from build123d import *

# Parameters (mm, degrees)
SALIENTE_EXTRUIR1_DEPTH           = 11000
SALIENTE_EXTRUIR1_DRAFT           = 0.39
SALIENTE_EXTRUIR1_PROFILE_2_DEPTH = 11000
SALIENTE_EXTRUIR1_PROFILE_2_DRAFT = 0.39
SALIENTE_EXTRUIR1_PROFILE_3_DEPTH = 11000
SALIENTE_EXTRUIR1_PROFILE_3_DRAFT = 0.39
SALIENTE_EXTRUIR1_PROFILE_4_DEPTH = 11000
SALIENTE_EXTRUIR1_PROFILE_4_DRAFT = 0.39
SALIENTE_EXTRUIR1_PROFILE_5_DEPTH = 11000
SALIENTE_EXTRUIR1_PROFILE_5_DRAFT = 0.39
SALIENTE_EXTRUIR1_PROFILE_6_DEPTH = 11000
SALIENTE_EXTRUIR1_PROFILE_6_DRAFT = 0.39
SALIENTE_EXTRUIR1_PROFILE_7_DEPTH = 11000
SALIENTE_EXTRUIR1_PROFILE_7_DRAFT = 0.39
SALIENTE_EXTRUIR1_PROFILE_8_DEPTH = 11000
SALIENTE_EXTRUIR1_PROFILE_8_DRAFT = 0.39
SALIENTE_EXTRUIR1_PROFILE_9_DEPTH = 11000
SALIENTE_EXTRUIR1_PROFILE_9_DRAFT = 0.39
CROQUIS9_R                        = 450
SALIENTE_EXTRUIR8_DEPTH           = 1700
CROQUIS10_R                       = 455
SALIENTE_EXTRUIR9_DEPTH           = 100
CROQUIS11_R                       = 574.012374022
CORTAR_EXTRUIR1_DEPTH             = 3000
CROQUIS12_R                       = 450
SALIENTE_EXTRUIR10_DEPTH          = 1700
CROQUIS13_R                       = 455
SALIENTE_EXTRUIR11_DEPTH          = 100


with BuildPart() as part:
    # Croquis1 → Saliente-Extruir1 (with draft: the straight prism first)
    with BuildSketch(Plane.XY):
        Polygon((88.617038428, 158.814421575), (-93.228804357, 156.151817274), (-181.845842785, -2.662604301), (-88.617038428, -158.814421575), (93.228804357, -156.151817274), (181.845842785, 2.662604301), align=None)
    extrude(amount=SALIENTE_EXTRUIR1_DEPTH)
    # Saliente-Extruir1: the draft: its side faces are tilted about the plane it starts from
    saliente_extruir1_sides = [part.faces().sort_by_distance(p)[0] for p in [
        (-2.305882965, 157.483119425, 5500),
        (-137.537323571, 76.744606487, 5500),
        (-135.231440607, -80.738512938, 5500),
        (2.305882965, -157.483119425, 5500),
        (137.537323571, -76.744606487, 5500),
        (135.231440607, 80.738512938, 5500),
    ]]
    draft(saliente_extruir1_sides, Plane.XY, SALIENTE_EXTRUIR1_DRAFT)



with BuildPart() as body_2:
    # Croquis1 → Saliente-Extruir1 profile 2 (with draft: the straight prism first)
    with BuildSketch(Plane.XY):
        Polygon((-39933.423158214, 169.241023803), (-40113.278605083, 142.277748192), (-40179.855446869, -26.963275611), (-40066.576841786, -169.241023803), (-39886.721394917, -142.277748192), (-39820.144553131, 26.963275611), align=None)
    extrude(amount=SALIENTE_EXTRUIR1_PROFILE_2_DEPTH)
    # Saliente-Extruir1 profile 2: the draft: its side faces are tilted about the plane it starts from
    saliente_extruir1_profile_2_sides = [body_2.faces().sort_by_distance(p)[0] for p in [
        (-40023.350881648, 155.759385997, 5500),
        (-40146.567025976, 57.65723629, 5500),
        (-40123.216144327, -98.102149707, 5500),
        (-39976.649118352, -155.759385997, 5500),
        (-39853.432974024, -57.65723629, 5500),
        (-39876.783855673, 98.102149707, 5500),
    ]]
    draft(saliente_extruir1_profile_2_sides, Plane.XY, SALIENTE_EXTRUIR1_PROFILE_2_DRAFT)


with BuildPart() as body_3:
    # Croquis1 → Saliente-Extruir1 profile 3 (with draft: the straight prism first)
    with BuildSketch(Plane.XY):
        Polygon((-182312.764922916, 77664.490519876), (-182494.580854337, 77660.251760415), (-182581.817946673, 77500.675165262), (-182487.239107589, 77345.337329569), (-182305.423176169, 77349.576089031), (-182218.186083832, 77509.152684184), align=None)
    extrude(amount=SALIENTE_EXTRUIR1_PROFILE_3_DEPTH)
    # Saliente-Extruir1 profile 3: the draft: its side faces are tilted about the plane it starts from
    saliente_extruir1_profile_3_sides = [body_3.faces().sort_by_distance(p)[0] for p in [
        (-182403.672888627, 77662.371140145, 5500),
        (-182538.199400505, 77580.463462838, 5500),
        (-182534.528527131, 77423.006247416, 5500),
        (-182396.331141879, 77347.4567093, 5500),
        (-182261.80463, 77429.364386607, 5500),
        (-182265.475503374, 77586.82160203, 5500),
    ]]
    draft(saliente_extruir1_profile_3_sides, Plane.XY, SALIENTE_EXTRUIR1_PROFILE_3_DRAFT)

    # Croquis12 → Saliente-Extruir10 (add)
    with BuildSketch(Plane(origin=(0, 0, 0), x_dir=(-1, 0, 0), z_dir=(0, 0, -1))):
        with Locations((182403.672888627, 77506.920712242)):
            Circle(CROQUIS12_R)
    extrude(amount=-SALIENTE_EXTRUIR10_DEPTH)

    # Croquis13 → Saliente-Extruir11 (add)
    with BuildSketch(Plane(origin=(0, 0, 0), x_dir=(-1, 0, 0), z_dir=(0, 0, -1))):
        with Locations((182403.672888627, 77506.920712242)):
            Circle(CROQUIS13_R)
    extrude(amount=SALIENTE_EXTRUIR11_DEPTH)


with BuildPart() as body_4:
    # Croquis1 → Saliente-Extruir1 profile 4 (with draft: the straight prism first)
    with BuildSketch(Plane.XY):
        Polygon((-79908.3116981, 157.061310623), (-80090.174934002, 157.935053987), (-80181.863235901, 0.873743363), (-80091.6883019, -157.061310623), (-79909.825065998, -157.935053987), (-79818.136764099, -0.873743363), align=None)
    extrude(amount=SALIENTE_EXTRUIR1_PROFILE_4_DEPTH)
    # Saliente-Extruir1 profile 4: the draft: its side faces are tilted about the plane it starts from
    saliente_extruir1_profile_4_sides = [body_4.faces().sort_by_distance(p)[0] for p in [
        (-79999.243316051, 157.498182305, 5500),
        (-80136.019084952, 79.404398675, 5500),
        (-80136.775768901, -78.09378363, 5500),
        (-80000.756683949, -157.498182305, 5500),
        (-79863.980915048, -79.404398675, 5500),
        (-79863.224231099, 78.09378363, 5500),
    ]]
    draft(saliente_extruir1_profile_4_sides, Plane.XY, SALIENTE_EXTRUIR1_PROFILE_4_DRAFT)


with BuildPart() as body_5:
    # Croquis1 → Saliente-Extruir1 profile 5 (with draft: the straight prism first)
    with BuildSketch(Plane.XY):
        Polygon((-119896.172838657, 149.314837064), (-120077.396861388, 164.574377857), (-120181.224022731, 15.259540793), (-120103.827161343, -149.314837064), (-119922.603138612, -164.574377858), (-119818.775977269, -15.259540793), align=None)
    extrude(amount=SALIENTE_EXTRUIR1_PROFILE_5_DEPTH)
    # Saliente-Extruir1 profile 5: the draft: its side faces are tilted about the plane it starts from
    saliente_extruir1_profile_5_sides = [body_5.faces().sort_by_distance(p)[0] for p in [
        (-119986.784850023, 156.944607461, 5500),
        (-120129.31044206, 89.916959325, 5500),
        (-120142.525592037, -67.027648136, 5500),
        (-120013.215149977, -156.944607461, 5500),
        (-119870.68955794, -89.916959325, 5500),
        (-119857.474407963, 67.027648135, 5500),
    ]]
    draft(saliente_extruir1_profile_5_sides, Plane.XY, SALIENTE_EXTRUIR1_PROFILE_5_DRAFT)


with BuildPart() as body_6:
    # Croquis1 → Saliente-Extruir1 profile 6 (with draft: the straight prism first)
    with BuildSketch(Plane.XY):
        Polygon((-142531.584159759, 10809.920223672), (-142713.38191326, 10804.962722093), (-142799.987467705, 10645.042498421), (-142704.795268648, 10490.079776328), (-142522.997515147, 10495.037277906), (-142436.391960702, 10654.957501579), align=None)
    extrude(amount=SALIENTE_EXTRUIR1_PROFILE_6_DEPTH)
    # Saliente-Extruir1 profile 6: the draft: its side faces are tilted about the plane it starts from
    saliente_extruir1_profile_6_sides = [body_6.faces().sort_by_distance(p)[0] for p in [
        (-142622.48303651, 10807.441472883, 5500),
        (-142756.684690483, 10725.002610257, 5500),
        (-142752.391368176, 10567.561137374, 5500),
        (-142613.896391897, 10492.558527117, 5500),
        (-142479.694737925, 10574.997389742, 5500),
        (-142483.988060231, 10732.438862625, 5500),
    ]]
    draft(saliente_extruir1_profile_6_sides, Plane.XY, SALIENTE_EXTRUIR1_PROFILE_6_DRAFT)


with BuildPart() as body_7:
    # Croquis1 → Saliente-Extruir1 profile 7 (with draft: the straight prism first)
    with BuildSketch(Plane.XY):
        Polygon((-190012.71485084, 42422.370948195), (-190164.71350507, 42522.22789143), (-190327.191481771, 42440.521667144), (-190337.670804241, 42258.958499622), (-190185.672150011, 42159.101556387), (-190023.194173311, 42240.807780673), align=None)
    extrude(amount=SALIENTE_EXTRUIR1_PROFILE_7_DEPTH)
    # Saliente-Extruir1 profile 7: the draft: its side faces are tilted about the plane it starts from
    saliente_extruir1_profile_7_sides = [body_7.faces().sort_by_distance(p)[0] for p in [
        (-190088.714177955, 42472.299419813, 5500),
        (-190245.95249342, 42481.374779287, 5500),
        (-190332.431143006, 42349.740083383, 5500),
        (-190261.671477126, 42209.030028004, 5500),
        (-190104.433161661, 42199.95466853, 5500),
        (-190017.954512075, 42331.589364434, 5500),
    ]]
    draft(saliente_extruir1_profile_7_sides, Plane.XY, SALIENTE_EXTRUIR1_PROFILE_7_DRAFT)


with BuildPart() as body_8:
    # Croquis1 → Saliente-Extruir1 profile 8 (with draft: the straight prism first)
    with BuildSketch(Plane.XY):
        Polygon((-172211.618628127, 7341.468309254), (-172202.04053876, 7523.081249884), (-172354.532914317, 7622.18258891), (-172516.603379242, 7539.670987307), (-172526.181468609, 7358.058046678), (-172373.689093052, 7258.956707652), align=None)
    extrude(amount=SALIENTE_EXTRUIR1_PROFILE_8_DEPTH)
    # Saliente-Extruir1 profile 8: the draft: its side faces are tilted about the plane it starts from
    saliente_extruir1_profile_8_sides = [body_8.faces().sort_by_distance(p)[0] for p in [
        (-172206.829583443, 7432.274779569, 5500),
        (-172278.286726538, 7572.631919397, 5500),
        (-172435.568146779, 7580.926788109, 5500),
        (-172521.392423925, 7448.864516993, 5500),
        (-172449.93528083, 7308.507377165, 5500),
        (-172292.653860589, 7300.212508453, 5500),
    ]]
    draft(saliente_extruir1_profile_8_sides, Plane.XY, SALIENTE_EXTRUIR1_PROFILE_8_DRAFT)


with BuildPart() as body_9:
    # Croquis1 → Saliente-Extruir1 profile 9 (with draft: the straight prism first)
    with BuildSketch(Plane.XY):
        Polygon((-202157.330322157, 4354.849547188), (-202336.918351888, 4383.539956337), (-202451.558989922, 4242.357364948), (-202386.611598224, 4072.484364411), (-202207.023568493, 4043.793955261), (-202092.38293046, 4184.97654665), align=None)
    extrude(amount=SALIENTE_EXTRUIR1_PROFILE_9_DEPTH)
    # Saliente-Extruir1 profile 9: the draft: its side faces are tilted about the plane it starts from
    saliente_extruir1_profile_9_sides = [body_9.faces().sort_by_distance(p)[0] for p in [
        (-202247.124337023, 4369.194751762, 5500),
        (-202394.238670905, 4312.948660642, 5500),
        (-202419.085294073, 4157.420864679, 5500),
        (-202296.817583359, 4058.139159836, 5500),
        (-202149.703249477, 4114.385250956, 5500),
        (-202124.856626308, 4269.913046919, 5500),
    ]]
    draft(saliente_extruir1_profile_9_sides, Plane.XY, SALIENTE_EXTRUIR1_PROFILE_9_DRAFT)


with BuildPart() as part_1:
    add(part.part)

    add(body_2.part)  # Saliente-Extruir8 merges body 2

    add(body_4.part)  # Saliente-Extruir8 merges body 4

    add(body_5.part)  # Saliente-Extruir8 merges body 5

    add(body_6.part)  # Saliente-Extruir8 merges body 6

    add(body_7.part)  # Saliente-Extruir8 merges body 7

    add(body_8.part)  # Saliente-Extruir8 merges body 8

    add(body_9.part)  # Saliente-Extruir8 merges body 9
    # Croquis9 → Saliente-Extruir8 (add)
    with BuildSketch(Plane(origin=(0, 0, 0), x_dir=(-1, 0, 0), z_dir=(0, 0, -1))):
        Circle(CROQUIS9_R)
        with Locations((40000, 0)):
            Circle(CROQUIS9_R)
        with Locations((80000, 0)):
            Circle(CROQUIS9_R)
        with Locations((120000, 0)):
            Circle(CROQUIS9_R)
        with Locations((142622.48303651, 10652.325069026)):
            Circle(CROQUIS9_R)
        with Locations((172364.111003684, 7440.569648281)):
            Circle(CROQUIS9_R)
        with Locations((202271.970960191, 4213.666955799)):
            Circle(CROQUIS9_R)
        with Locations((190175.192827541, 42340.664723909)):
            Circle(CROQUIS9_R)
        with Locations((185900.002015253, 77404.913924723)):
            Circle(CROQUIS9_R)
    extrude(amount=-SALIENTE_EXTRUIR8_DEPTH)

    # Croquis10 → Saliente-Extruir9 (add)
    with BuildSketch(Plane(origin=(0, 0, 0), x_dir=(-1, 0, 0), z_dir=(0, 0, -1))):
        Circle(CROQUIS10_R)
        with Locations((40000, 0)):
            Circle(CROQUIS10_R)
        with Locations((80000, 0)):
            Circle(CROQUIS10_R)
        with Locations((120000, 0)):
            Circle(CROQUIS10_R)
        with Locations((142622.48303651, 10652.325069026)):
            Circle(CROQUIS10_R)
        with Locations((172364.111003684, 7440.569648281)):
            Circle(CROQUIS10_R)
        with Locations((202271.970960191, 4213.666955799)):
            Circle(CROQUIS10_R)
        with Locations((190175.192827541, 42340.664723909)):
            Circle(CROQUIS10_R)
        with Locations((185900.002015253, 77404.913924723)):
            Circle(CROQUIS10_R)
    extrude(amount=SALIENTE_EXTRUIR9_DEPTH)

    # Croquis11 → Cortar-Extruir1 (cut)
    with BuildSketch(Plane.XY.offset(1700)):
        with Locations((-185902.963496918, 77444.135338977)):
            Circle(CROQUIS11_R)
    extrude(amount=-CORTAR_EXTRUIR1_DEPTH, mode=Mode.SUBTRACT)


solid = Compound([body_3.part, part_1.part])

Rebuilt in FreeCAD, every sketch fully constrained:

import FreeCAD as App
import Part
import Sketcher

V = App.Vector


def faces_at(feature, points):
    """Names of the faces that lie closest to the given points."""
    faces = feature.Shape.Faces
    near = lambda p: min(range(len(faces)), key=lambda i: faces[i].distToShape(Part.Vertex(*p))[0])
    return sorted({f"Face{near(p) + 1}" for p in points})

doc = App.newDocument("Part")
body = doc.addObject("PartDesign::Body", "Body")

sketch1 = body.newObject("Sketcher::SketchObject", "Sketch")
sketch1.AttachmentSupport = (doc.getObject("XY_Plane"), [""])
sketch1.MapMode = "FlatFace"
sketch1.addGeometry(Part.LineSegment(V(88.617038, 158.814422, 0), V(-93.228804, 156.151817, 0)), False)
sketch1.addGeometry(Part.LineSegment(V(-93.228804, 156.151817, 0), V(-181.845843, -2.662604, 0)), False)
sketch1.addGeometry(Part.LineSegment(V(-181.845843, -2.662604, 0), V(-88.617038, -158.814422, 0)), False)
sketch1.addGeometry(Part.LineSegment(V(-88.617038, -158.814422, 0), V(93.228804, -156.151817, 0)), False)
sketch1.addGeometry(Part.LineSegment(V(93.228804, -156.151817, 0), V(181.845843, 2.662604, 0)), False)
sketch1.addGeometry(Part.LineSegment(V(181.845843, 2.662604, 0), V(88.617038, 158.814422, 0)), False)
sketch1.addConstraint(Sketcher.Constraint("Coincident", 0, 2, 1, 1))
sketch1.addConstraint(Sketcher.Constraint("Coincident", 1, 2, 2, 1))
sketch1.addConstraint(Sketcher.Constraint("Coincident", 2, 2, 3, 1))
sketch1.addConstraint(Sketcher.Constraint("Coincident", 3, 2, 4, 1))
sketch1.addConstraint(Sketcher.Constraint("Coincident", 4, 2, 5, 1))
sketch1.addConstraint(Sketcher.Constraint("Coincident", 5, 2, 0, 1))
sketch1.addConstraint(Sketcher.Constraint("Symmetric", 0, 2, 3, 2, -1, 1))
sketch1.addConstraint(Sketcher.Constraint("Symmetric", 1, 2, 4, 2, -1, 1))
sketch1.addConstraint(Sketcher.Constraint("Symmetric", 2, 2, 5, 2, -1, 1))
sketch1.addConstraint(Sketcher.Constraint("Equal", 0, 1))
sketch1.addConstraint(Sketcher.Constraint("Equal", 1, 2))
sketch1.addConstraint(Sketcher.Constraint("DistanceX", 2, 2, -1, 1, 88.617038))
sketch1.addConstraint(Sketcher.Constraint("DistanceY", 2, 2, -1, 1, 158.814422))
sketch1.addConstraint(Sketcher.Constraint("DistanceX", 1, 2, 0, 2, 88.617038))
sketch1.addConstraint(Sketcher.Constraint("DistanceY", 1, 2, 0, 2, 158.814422))
pad1 = body.newObject("PartDesign::Pad", "Pad")
pad1.Profile = sketch1
pad1.Length = 11000
doc.recompute()

draft = body.newObject("PartDesign::Draft", "Draft")
draft.Base = (pad1, faces_at(pad1, [
    (-2.306, 157.483, 5500),
    (-137.537, 76.745, 5500),
    (-135.231, -80.739, 5500),
    (2.306, -157.483, 5500),
    (137.537, -76.745, 5500),
    (135.231, 80.739, 5500),
]))
draft.NeutralPlane = (doc.getObject("XY_Plane"), [""])
draft.Angle = 0.39
draft.Reversed = False
body2 = doc.addObject("PartDesign::Body", "Body001")

sketch2 = body2.newObject("Sketcher::SketchObject", "Sketch001")
sketch2.AttachmentSupport = (doc.getObject("XY_Plane001"), [""])
sketch2.MapMode = "FlatFace"
sketch2.addGeometry(Part.LineSegment(V(-39933.423158, 169.241024, 0), V(-40113.278605, 142.277748, 0)), False)
sketch2.addGeometry(Part.LineSegment(V(-40113.278605, 142.277748, 0), V(-40179.855447, -26.963276, 0)), False)
sketch2.addGeometry(Part.LineSegment(V(-40179.855447, -26.963276, 0), V(-40066.576842, -169.241024, 0)), False)
sketch2.addGeometry(Part.LineSegment(V(-40066.576842, -169.241024, 0), V(-39886.721395, -142.277748, 0)), False)
sketch2.addGeometry(Part.LineSegment(V(-39886.721395, -142.277748, 0), V(-39820.144553, 26.963276, 0)), False)
sketch2.addGeometry(Part.LineSegment(V(-39820.144553, 26.963276, 0), V(-39933.423158, 169.241024, 0)), False)
sketch2.addConstraint(Sketcher.Constraint("Coincident", 0, 2, 1, 1))
sketch2.addConstraint(Sketcher.Constraint("Coincident", 1, 2, 2, 1))
sketch2.addConstraint(Sketcher.Constraint("Coincident", 2, 2, 3, 1))
sketch2.addConstraint(Sketcher.Constraint("Coincident", 3, 2, 4, 1))
sketch2.addConstraint(Sketcher.Constraint("Coincident", 4, 2, 5, 1))
sketch2.addConstraint(Sketcher.Constraint("Coincident", 5, 2, 0, 1))
sketch2.addConstraint(Sketcher.Constraint("Parallel", 0, 3))
sketch2.addConstraint(Sketcher.Constraint("Parallel", 1, 4))
sketch2.addConstraint(Sketcher.Constraint("Parallel", 2, 5))
sketch2.addConstraint(Sketcher.Constraint("Equal", 0, 1))
sketch2.addConstraint(Sketcher.Constraint("Equal", 1, 2))
sketch2.addConstraint(Sketcher.Constraint("Equal", 2, 3))
sketch2.addConstraint(Sketcher.Constraint("DistanceY", 2, 2, 4, 2, 196.204299))
sketch2.addConstraint(Sketcher.Constraint("DistanceY", -1, 1, 0, 2, 142.277748))
sketch2.addConstraint(Sketcher.Constraint("DistanceX", 2, 2, -1, 1, 40066.576842))
sketch2.addConstraint(Sketcher.Constraint("DistanceY", 3, 2, -1, 1, 142.277748))
sketch2.addConstraint(Sketcher.Constraint("DistanceX", 5, 2, -1, 1, 39933.423158))
sketch2.addConstraint(Sketcher.Constraint("DistanceX", 1, 2, 0, 2, 66.576842))
pad2 = body2.newObject("PartDesign::Pad", "Pad001")
pad2.Profile = sketch2
pad2.Length = 11000
doc.recompute()

draft2 = body2.newObject("PartDesign::Draft", "Draft001")
draft2.Base = (pad2, faces_at(pad2, [
    (-40023.351, 155.759, 5500),
    (-40146.567, 57.657, 5500),
    (-40123.216, -98.102, 5500),
    (-39976.649, -155.759, 5500),
    (-39853.433, -57.657, 5500),
    (-39876.784, 98.102, 5500),
]))
draft2.NeutralPlane = (doc.getObject("XY_Plane001"), [""])
draft2.Angle = 0.39
draft2.Reversed = False
body3 = doc.addObject("PartDesign::Body", "Body002")

sketch3 = body3.newObject("Sketcher::SketchObject", "Sketch002")
sketch3.AttachmentSupport = (doc.getObject("XY_Plane002"), [""])
sketch3.MapMode = "FlatFace"
sketch3.addGeometry(Part.LineSegment(V(-182312.764923, 77664.49052, 0), V(-182494.580854, 77660.25176, 0)), False)
sketch3.addGeometry(Part.LineSegment(V(-182494.580854, 77660.25176, 0), V(-182581.817947, 77500.675165, 0)), False)
sketch3.addGeometry(Part.LineSegment(V(-182581.817947, 77500.675165, 0), V(-182487.239108, 77345.33733, 0)), False)
sketch3.addGeometry(Part.LineSegment(V(-182487.239108, 77345.33733, 0), V(-182305.423176, 77349.576089, 0)), False)
sketch3.addGeometry(Part.LineSegment(V(-182305.423176, 77349.576089, 0), V(-182218.186084, 77509.152684, 0)), False)
sketch3.addGeometry(Part.LineSegment(V(-182218.186084, 77509.152684, 0), V(-182312.764923, 77664.49052, 0)), False)
sketch3.addConstraint(Sketcher.Constraint("Coincident", 0, 2, 1, 1))
sketch3.addConstraint(Sketcher.Constraint("Coincident", 1, 2, 2, 1))
sketch3.addConstraint(Sketcher.Constraint("Coincident", 2, 2, 3, 1))
sketch3.addConstraint(Sketcher.Constraint("Coincident", 3, 2, 4, 1))
sketch3.addConstraint(Sketcher.Constraint("Coincident", 4, 2, 5, 1))
sketch3.addConstraint(Sketcher.Constraint("Coincident", 5, 2, 0, 1))
sketch3.addConstraint(Sketcher.Constraint("Parallel", 0, 3))
sketch3.addConstraint(Sketcher.Constraint("Parallel", 1, 4))
sketch3.addConstraint(Sketcher.Constraint("Parallel", 2, 5))
sketch3.addConstraint(Sketcher.Constraint("Equal", 0, 1))
sketch3.addConstraint(Sketcher.Constraint("Equal", 1, 2))
sketch3.addConstraint(Sketcher.Constraint("Equal", 2, 3))
sketch3.addConstraint(Sketcher.Constraint("DistanceY", -1, 1, 0, 2, 77660.25176))
sketch3.addConstraint(Sketcher.Constraint("DistanceY", -1, 1, 2, 2, 77345.33733))
sketch3.addConstraint(Sketcher.Constraint("DistanceY", -1, 1, 3, 2, 77349.576089))
sketch3.addConstraint(Sketcher.Constraint("DistanceX", 1, 2, 2, 2, 94.578839))
sketch3.addConstraint(Sketcher.Constraint("DistanceX", 2, 2, 3, 2, 181.815931))
sketch3.addConstraint(Sketcher.Constraint("DistanceX", 0, 2, -1, 1, 182494.580854))
pad3 = body3.newObject("PartDesign::Pad", "Pad002")
pad3.Profile = sketch3
pad3.Length = 11000
doc.recompute()

draft3 = body3.newObject("PartDesign::Draft", "Draft002")
draft3.Base = (pad3, faces_at(pad3, [
    (-182403.673, 77662.371, 5500),
    (-182538.199, 77580.463, 5500),
    (-182534.529, 77423.006, 5500),
    (-182396.331, 77347.457, 5500),
    (-182261.805, 77429.364, 5500),
    (-182265.476, 77586.822, 5500),
]))
draft3.NeutralPlane = (doc.getObject("XY_Plane002"), [""])
draft3.Angle = 0.39
draft3.Reversed = False

sketch4 = body3.newObject("Sketcher::SketchObject", "Sketch003")
sketch4.AttachmentSupport = (doc.getObject("XY_Plane002"), [""])
sketch4.MapMode = "FlatFace"
sketch4.addGeometry(Part.Circle(V(-182403.672889, 77506.920712, 0), V(0, 0, 1), 450), False)
sketch4.addConstraint(Sketcher.Constraint("Diameter", 0, 900.0))
sketch4.addConstraint(Sketcher.Constraint("DistanceX", 0, 3, -1, 1, 182403.672889))
sketch4.addConstraint(Sketcher.Constraint("DistanceY", -1, 1, 0, 3, 77506.920712))
pad4 = body3.newObject("PartDesign::Pad", "Pad003")
pad4.Profile = sketch4
pad4.Length = 1700

sketch5 = body3.newObject("Sketcher::SketchObject", "Sketch004")
sketch5.AttachmentSupport = (doc.getObject("XY_Plane002"), [""])
sketch5.MapMode = "FlatFace"
sketch5.addGeometry(Part.Circle(V(-182403.672889, 77506.920712, 0), V(0, 0, 1), 455), False)
sketch5.addConstraint(Sketcher.Constraint("Diameter", 0, 910.0))
sketch5.addConstraint(Sketcher.Constraint("DistanceX", 0, 3, -1, 1, 182403.672889))
sketch5.addConstraint(Sketcher.Constraint("DistanceY", -1, 1, 0, 3, 77506.920712))
pad5 = body3.newObject("PartDesign::Pad", "Pad004")
pad5.Profile = sketch5
pad5.Length = 100
pad5.Reversed = True
body4 = doc.addObject("PartDesign::Body", "Body003")

sketch6 = body4.newObject("Sketcher::SketchObject", "Sketch005")
sketch6.AttachmentSupport = (doc.getObject("XY_Plane003"), [""])
sketch6.MapMode = "FlatFace"
sketch6.addGeometry(Part.LineSegment(V(-79908.311698, 157.061311, 0), V(-80090.174934, 157.935054, 0)), False)
sketch6.addGeometry(Part.LineSegment(V(-80090.174934, 157.935054, 0), V(-80181.863236, 0.873743, 0)), False)
sketch6.addGeometry(Part.LineSegment(V(-80181.863236, 0.873743, 0), V(-80091.688302, -157.061311, 0)), False)
sketch6.addGeometry(Part.LineSegment(V(-80091.688302, -157.061311, 0), V(-79909.825066, -157.935054, 0)), False)
sketch6.addGeometry(Part.LineSegment(V(-79909.825066, -157.935054, 0), V(-79818.136764, -0.873743, 0)), False)
sketch6.addGeometry(Part.LineSegment(V(-79818.136764, -0.873743, 0), V(-79908.311698, 157.061311, 0)), False)
sketch6.addConstraint(Sketcher.Constraint("Coincident", 0, 2, 1, 1))
sketch6.addConstraint(Sketcher.Constraint("Coincident", 1, 2, 2, 1))
sketch6.addConstraint(Sketcher.Constraint("Coincident", 2, 2, 3, 1))
sketch6.addConstraint(Sketcher.Constraint("Coincident", 3, 2, 4, 1))
sketch6.addConstraint(Sketcher.Constraint("Coincident", 4, 2, 5, 1))
sketch6.addConstraint(Sketcher.Constraint("Coincident", 5, 2, 0, 1))
sketch6.addConstraint(Sketcher.Constraint("Parallel", 0, 3))
sketch6.addConstraint(Sketcher.Constraint("Parallel", 1, 4))
sketch6.addConstraint(Sketcher.Constraint("Parallel", 2, 5))
sketch6.addConstraint(Sketcher.Constraint("Equal", 0, 1))
sketch6.addConstraint(Sketcher.Constraint("Equal", 1, 2))
sketch6.addConstraint(Sketcher.Constraint("Equal", 2, 3))
sketch6.addConstraint(Sketcher.Constraint("DistanceX", 2, 2, -1, 1, 80091.688302))
sketch6.addConstraint(Sketcher.Constraint("DistanceX", 5, 2, -1, 1, 79908.311698))
sketch6.addConstraint(Sketcher.Constraint("DistanceX", 1, 2, 0, 2, 91.688302))
sketch6.addConstraint(Sketcher.Constraint("DistanceY", 2, 2, -1, 1, 157.061311))
sketch6.addConstraint(Sketcher.Constraint("DistanceY", -1, 1, 5, 2, 157.061311))
sketch6.addConstraint(Sketcher.Constraint("DistanceY", 1, 2, 0, 2, 157.061311))
pad6 = body4.newObject("PartDesign::Pad", "Pad005")
pad6.Profile = sketch6
pad6.Length = 11000
doc.recompute()

draft4 = body4.newObject("PartDesign::Draft", "Draft003")
draft4.Base = (pad6, faces_at(pad6, [
    (-79999.243, 157.498, 5500),
    (-80136.019, 79.404, 5500),
    (-80136.776, -78.094, 5500),
    (-80000.757, -157.498, 5500),
    (-79863.981, -79.404, 5500),
    (-79863.224, 78.094, 5500),
]))
draft4.NeutralPlane = (doc.getObject("XY_Plane003"), [""])
draft4.Angle = 0.39
draft4.Reversed = False
body5 = doc.addObject("PartDesign::Body", "Body004")

sketch7 = body5.newObject("Sketcher::SketchObject", "Sketch006")
sketch7.AttachmentSupport = (doc.getObject("XY_Plane004"), [""])
sketch7.MapMode = "FlatFace"
sketch7.addGeometry(Part.LineSegment(V(-119896.172839, 149.314837, 0), V(-120077.396861, 164.574378, 0)), False)
sketch7.addGeometry(Part.LineSegment(V(-120077.396861, 164.574378, 0), V(-120181.224023, 15.259541, 0)), False)
sketch7.addGeometry(Part.LineSegment(V(-120181.224023, 15.259541, 0), V(-120103.827161, -149.314837, 0)), False)
sketch7.addGeometry(Part.LineSegment(V(-120103.827161, -149.314837, 0), V(-119922.603139, -164.574378, 0)), False)
sketch7.addGeometry(Part.LineSegment(V(-119922.603139, -164.574378, 0), V(-119818.775977, -15.259541, 0)), False)
sketch7.addGeometry(Part.LineSegment(V(-119818.775977, -15.259541, 0), V(-119896.172839, 149.314837, 0)), False)
sketch7.addConstraint(Sketcher.Constraint("Coincident", 0, 2, 1, 1))
sketch7.addConstraint(Sketcher.Constraint("Coincident", 1, 2, 2, 1))
sketch7.addConstraint(Sketcher.Constraint("Coincident", 2, 2, 3, 1))
sketch7.addConstraint(Sketcher.Constraint("Coincident", 3, 2, 4, 1))
sketch7.addConstraint(Sketcher.Constraint("Coincident", 4, 2, 5, 1))
sketch7.addConstraint(Sketcher.Constraint("Coincident", 5, 2, 0, 1))
sketch7.addConstraint(Sketcher.Constraint("Parallel", 0, 3))
sketch7.addConstraint(Sketcher.Constraint("Parallel", 1, 4))
sketch7.addConstraint(Sketcher.Constraint("Parallel", 2, 5))
sketch7.addConstraint(Sketcher.Constraint("Equal", 0, 1))
sketch7.addConstraint(Sketcher.Constraint("Equal", 1, 2))
sketch7.addConstraint(Sketcher.Constraint("Equal", 2, 3))
sketch7.addConstraint(Sketcher.Constraint("DistanceX", 2, 2, 0, 2, 26.4303))
sketch7.addConstraint(Sketcher.Constraint("DistanceX", 0, 2, -1, 1, 120077.396861))
sketch7.addConstraint(Sketcher.Constraint("DistanceY", -1, 1, 1, 2, 15.259541))
sketch7.addConstraint(Sketcher.Constraint("DistanceX", 3, 2, -1, 1, 119922.603139))
sketch7.addConstraint(Sketcher.Constraint("DistanceY", 4, 2, -1, 1, 15.259541))
sketch7.addConstraint(Sketcher.Constraint("DistanceX", 1, 2, 0, 2, 103.827161))
pad7 = body5.newObject("PartDesign::Pad", "Pad006")
pad7.Profile = sketch7
pad7.Length = 11000
doc.recompute()

draft5 = body5.newObject("PartDesign::Draft", "Draft004")
draft5.Base = (pad7, faces_at(pad7, [
    (-119986.785, 156.945, 5500),
    (-120129.31, 89.917, 5500),
    (-120142.526, -67.028, 5500),
    (-120013.215, -156.945, 5500),
    (-119870.69, -89.917, 5500),
    (-119857.474, 67.028, 5500),
]))
draft5.NeutralPlane = (doc.getObject("XY_Plane004"), [""])
draft5.Angle = 0.39
draft5.Reversed = False
body6 = doc.addObject("PartDesign::Body", "Body005")

sketch8 = body6.newObject("Sketcher::SketchObject", "Sketch007")
sketch8.AttachmentSupport = (doc.getObject("XY_Plane005"), [""])
sketch8.MapMode = "FlatFace"
sketch8.addGeometry(Part.LineSegment(V(-142531.58416, 10809.920224, 0), V(-142713.381913, 10804.962722, 0)), False)
sketch8.addGeometry(Part.LineSegment(V(-142713.381913, 10804.962722, 0), V(-142799.987468, 10645.042498, 0)), False)
sketch8.addGeometry(Part.LineSegment(V(-142799.987468, 10645.042498, 0), V(-142704.795269, 10490.079776, 0)), False)
sketch8.addGeometry(Part.LineSegment(V(-142704.795269, 10490.079776, 0), V(-142522.997515, 10495.037278, 0)), False)
sketch8.addGeometry(Part.LineSegment(V(-142522.997515, 10495.037278, 0), V(-142436.391961, 10654.957502, 0)), False)
sketch8.addGeometry(Part.LineSegment(V(-142436.391961, 10654.957502, 0), V(-142531.58416, 10809.920224, 0)), False)
sketch8.addConstraint(Sketcher.Constraint("Coincident", 0, 2, 1, 1))
sketch8.addConstraint(Sketcher.Constraint("Coincident", 1, 2, 2, 1))
sketch8.addConstraint(Sketcher.Constraint("Coincident", 2, 2, 3, 1))
sketch8.addConstraint(Sketcher.Constraint("Coincident", 3, 2, 4, 1))
sketch8.addConstraint(Sketcher.Constraint("Coincident", 4, 2, 5, 1))
sketch8.addConstraint(Sketcher.Constraint("Coincident", 5, 2, 0, 1))
sketch8.addConstraint(Sketcher.Constraint("Parallel", 0, 3))
sketch8.addConstraint(Sketcher.Constraint("Parallel", 1, 4))
sketch8.addConstraint(Sketcher.Constraint("Parallel", 2, 5))
sketch8.addConstraint(Sketcher.Constraint("Equal", 0, 1))
sketch8.addConstraint(Sketcher.Constraint("Equal", 1, 2))
sketch8.addConstraint(Sketcher.Constraint("Equal", 2, 3))
sketch8.addConstraint(Sketcher.Constraint("DistanceY", -1, 1, 1, 2, 10645.042498))
sketch8.addConstraint(Sketcher.Constraint("DistanceY", -1, 1, 4, 2, 10654.957502))
sketch8.addConstraint(Sketcher.Constraint("DistanceX", 1, 2, 2, 2, 95.192199))
sketch8.addConstraint(Sketcher.Constraint("DistanceY", 2, 2, 3, 2, 4.957502))
sketch8.addConstraint(Sketcher.Constraint("DistanceX", 0, 2, 3, 2, 190.384398))
sketch8.addConstraint(Sketcher.Constraint("DistanceX", 2, 2, -1, 1, 142704.795269))
pad8 = body6.newObject("PartDesign::Pad", "Pad007")
pad8.Profile = sketch8
pad8.Length = 11000
doc.recompute()

draft6 = body6.newObject("PartDesign::Draft", "Draft005")
draft6.Base = (pad8, faces_at(pad8, [
    (-142622.483, 10807.441, 5500),
    (-142756.685, 10725.003, 5500),
    (-142752.391, 10567.561, 5500),
    (-142613.896, 10492.559, 5500),
    (-142479.695, 10574.997, 5500),
    (-142483.988, 10732.439, 5500),
]))
draft6.NeutralPlane = (doc.getObject("XY_Plane005"), [""])
draft6.Angle = 0.39
draft6.Reversed = False
body7 = doc.addObject("PartDesign::Body", "Body006")

sketch9 = body7.newObject("Sketcher::SketchObject", "Sketch008")
sketch9.AttachmentSupport = (doc.getObject("XY_Plane006"), [""])
sketch9.MapMode = "FlatFace"
sketch9.addGeometry(Part.LineSegment(V(-190012.714851, 42422.370948, 0), V(-190164.713505, 42522.227891, 0)), False)
sketch9.addGeometry(Part.LineSegment(V(-190164.713505, 42522.227891, 0), V(-190327.191482, 42440.521667, 0)), False)
sketch9.addGeometry(Part.LineSegment(V(-190327.191482, 42440.521667, 0), V(-190337.670804, 42258.9585, 0)), False)
sketch9.addGeometry(Part.LineSegment(V(-190337.670804, 42258.9585, 0), V(-190185.67215, 42159.101556, 0)), False)
sketch9.addGeometry(Part.LineSegment(V(-190185.67215, 42159.101556, 0), V(-190023.194173, 42240.807781, 0)), False)
sketch9.addGeometry(Part.LineSegment(V(-190023.194173, 42240.807781, 0), V(-190012.714851, 42422.370948, 0)), False)
sketch9.addConstraint(Sketcher.Constraint("Coincident", 0, 2, 1, 1))
sketch9.addConstraint(Sketcher.Constraint("Coincident", 1, 2, 2, 1))
sketch9.addConstraint(Sketcher.Constraint("Coincident", 2, 2, 3, 1))
sketch9.addConstraint(Sketcher.Constraint("Coincident", 3, 2, 4, 1))
sketch9.addConstraint(Sketcher.Constraint("Coincident", 4, 2, 5, 1))
sketch9.addConstraint(Sketcher.Constraint("Coincident", 5, 2, 0, 1))
sketch9.addConstraint(Sketcher.Constraint("Parallel", 0, 3))
sketch9.addConstraint(Sketcher.Constraint("Parallel", 1, 4))
sketch9.addConstraint(Sketcher.Constraint("Parallel", 2, 5))
sketch9.addConstraint(Sketcher.Constraint("Equal", 0, 1))
sketch9.addConstraint(Sketcher.Constraint("Equal", 1, 2))
sketch9.addConstraint(Sketcher.Constraint("Equal", 2, 3))
sketch9.addConstraint(Sketcher.Constraint("DistanceY", -1, 1, 2, 2, 42258.9585))
sketch9.addConstraint(Sketcher.Constraint("DistanceX", 2, 2, 0, 2, 172.957299))
sketch9.addConstraint(Sketcher.Constraint("DistanceY", -1, 1, 0, 2, 42522.227891))
sketch9.addConstraint(Sketcher.Constraint("DistanceX", 1, 2, -1, 1, 190327.191482))
sketch9.addConstraint(Sketcher.Constraint("DistanceX", 3, 2, -1, 1, 190185.67215))
sketch9.addConstraint(Sketcher.Constraint("DistanceY", -1, 1, 4, 2, 42240.807781))
pad9 = body7.newObject("PartDesign::Pad", "Pad008")
pad9.Profile = sketch9
pad9.Length = 11000
doc.recompute()

draft7 = body7.newObject("PartDesign::Draft", "Draft006")
draft7.Base = (pad9, faces_at(pad9, [
    (-190088.714, 42472.299, 5500),
    (-190245.952, 42481.375, 5500),
    (-190332.431, 42349.74, 5500),
    (-190261.671, 42209.03, 5500),
    (-190104.433, 42199.955, 5500),
    (-190017.955, 42331.589, 5500),
]))
draft7.NeutralPlane = (doc.getObject("XY_Plane006"), [""])
draft7.Angle = 0.39
draft7.Reversed = False
body8 = doc.addObject("PartDesign::Body", "Body007")

sketch10 = body8.newObject("Sketcher::SketchObject", "Sketch009")
sketch10.AttachmentSupport = (doc.getObject("XY_Plane007"), [""])
sketch10.MapMode = "FlatFace"
sketch10.addGeometry(Part.LineSegment(V(-172211.618628, 7341.468309, 0), V(-172202.040539, 7523.08125, 0)), False)
sketch10.addGeometry(Part.LineSegment(V(-172202.040539, 7523.08125, 0), V(-172354.532914, 7622.182589, 0)), False)
sketch10.addGeometry(Part.LineSegment(V(-172354.532914, 7622.182589, 0), V(-172516.603379, 7539.670987, 0)), False)
sketch10.addGeometry(Part.LineSegment(V(-172516.603379, 7539.670987, 0), V(-172526.181469, 7358.058047, 0)), False)
sketch10.addGeometry(Part.LineSegment(V(-172526.181469, 7358.058047, 0), V(-172373.689093, 7258.956708, 0)), False)
sketch10.addGeometry(Part.LineSegment(V(-172373.689093, 7258.956708, 0), V(-172211.618628, 7341.468309, 0)), False)
sketch10.addConstraint(Sketcher.Constraint("Coincident", 0, 2, 1, 1))
sketch10.addConstraint(Sketcher.Constraint("Coincident", 1, 2, 2, 1))
sketch10.addConstraint(Sketcher.Constraint("Coincident", 2, 2, 3, 1))
sketch10.addConstraint(Sketcher.Constraint("Coincident", 3, 2, 4, 1))
sketch10.addConstraint(Sketcher.Constraint("Coincident", 4, 2, 5, 1))
sketch10.addConstraint(Sketcher.Constraint("Coincident", 5, 2, 0, 1))
sketch10.addConstraint(Sketcher.Constraint("Parallel", 0, 3))
sketch10.addConstraint(Sketcher.Constraint("Parallel", 1, 4))
sketch10.addConstraint(Sketcher.Constraint("Parallel", 2, 5))
sketch10.addConstraint(Sketcher.Constraint("Equal", 0, 1))
sketch10.addConstraint(Sketcher.Constraint("Equal", 1, 2))
sketch10.addConstraint(Sketcher.Constraint("Equal", 2, 3))
sketch10.addConstraint(Sketcher.Constraint("DistanceY", 2, 2, 1, 2, 82.511602))
sketch10.addConstraint(Sketcher.Constraint("DistanceX", 0, 2, -1, 1, 172202.040539))
sketch10.addConstraint(Sketcher.Constraint("DistanceY", -1, 1, 0, 2, 7523.08125))
sketch10.addConstraint(Sketcher.Constraint("DistanceY", -1, 1, 1, 2, 7622.182589))
sketch10.addConstraint(Sketcher.Constraint("DistanceX", 2, 2, -1, 1, 172516.603379))
sketch10.addConstraint(Sketcher.Constraint("DistanceX", 3, 2, -1, 1, 172526.181469))
pad10 = body8.newObject("PartDesign::Pad", "Pad009")
pad10.Profile = sketch10
pad10.Length = 11000
doc.recompute()

draft8 = body8.newObject("PartDesign::Draft", "Draft007")
draft8.Base = (pad10, faces_at(pad10, [
    (-172206.83, 7432.275, 5500),
    (-172278.287, 7572.632, 5500),
    (-172435.568, 7580.927, 5500),
    (-172521.392, 7448.865, 5500),
    (-172449.935, 7308.507, 5500),
    (-172292.654, 7300.213, 5500),
]))
draft8.NeutralPlane = (doc.getObject("XY_Plane007"), [""])
draft8.Angle = 0.39
draft8.Reversed = False
body9 = doc.addObject("PartDesign::Body", "Body008")

sketch11 = body9.newObject("Sketcher::SketchObject", "Sketch010")
sketch11.AttachmentSupport = (doc.getObject("XY_Plane008"), [""])
sketch11.MapMode = "FlatFace"
sketch11.addGeometry(Part.LineSegment(V(-202157.330322, 4354.849547, 0), V(-202336.918352, 4383.539956, 0)), False)
sketch11.addGeometry(Part.LineSegment(V(-202336.918352, 4383.539956, 0), V(-202451.55899, 4242.357365, 0)), False)
sketch11.addGeometry(Part.LineSegment(V(-202451.55899, 4242.357365, 0), V(-202386.611598, 4072.484364, 0)), False)
sketch11.addGeometry(Part.LineSegment(V(-202386.611598, 4072.484364, 0), V(-202207.023568, 4043.793955, 0)), False)
sketch11.addGeometry(Part.LineSegment(V(-202207.023568, 4043.793955, 0), V(-202092.38293, 4184.976547, 0)), False)
sketch11.addGeometry(Part.LineSegment(V(-202092.38293, 4184.976547, 0), V(-202157.330322, 4354.849547, 0)), False)
sketch11.addConstraint(Sketcher.Constraint("Coincident", 0, 2, 1, 1))
sketch11.addConstraint(Sketcher.Constraint("Coincident", 1, 2, 2, 1))
sketch11.addConstraint(Sketcher.Constraint("Coincident", 2, 2, 3, 1))
sketch11.addConstraint(Sketcher.Constraint("Coincident", 3, 2, 4, 1))
sketch11.addConstraint(Sketcher.Constraint("Coincident", 4, 2, 5, 1))
sketch11.addConstraint(Sketcher.Constraint("Coincident", 5, 2, 0, 1))
sketch11.addConstraint(Sketcher.Constraint("Parallel", 0, 3))
sketch11.addConstraint(Sketcher.Constraint("Parallel", 1, 4))
sketch11.addConstraint(Sketcher.Constraint("Parallel", 2, 5))
sketch11.addConstraint(Sketcher.Constraint("Equal", 0, 1))
sketch11.addConstraint(Sketcher.Constraint("Equal", 1, 2))
sketch11.addConstraint(Sketcher.Constraint("Equal", 2, 3))
sketch11.addConstraint(Sketcher.Constraint("DistanceY", 2, 2, 1, 2, 169.873001))
sketch11.addConstraint(Sketcher.Constraint("DistanceY", 3, 2, 0, 2, 339.746001))
sketch11.addConstraint(Sketcher.Constraint("DistanceX", 2, 2, -1, 1, 202386.611598))
sketch11.addConstraint(Sketcher.Constraint("DistanceX", 0, 2, -1, 1, 202336.918352))
sketch11.addConstraint(Sketcher.Constraint("DistanceX", 1, 2, -1, 1, 202451.55899))
sketch11.addConstraint(Sketcher.Constraint("DistanceY", -1, 1, 0, 2, 4383.539956))
pad11 = body9.newObject("PartDesign::Pad", "Pad010")
pad11.Profile = sketch11
pad11.Length = 11000
doc.recompute()

draft9 = body9.newObject("PartDesign::Draft", "Draft008")
draft9.Base = (pad11, faces_at(pad11, [
    (-202247.124, 4369.195, 5500),
    (-202394.239, 4312.949, 5500),
    (-202419.085, 4157.421, 5500),
    (-202296.818, 4058.139, 5500),
    (-202149.703, 4114.385, 5500),
    (-202124.857, 4269.913, 5500),
]))
draft9.NeutralPlane = (doc.getObject("XY_Plane008"), [""])
draft9.Angle = 0.39
draft9.Reversed = False
body.AllowCompound = True
doc.recompute()

boolean = body.newObject("PartDesign::Boolean", "Boolean")
boolean.Type = "Fuse"
boolean.addObjects([body2])
doc.recompute()

boolean2 = body.newObject("PartDesign::Boolean", "Boolean001")
boolean2.Type = "Fuse"
boolean2.addObjects([body4])
doc.recompute()

boolean3 = body.newObject("PartDesign::Boolean", "Boolean002")
boolean3.Type = "Fuse"
boolean3.addObjects([body5])
doc.recompute()

boolean4 = body.newObject("PartDesign::Boolean", "Boolean003")
boolean4.Type = "Fuse"
boolean4.addObjects([body6])
doc.recompute()

boolean5 = body.newObject("PartDesign::Boolean", "Boolean004")
boolean5.Type = "Fuse"
boolean5.addObjects([body7])
doc.recompute()

boolean6 = body.newObject("PartDesign::Boolean", "Boolean005")
boolean6.Type = "Fuse"
boolean6.addObjects([body8])
doc.recompute()

boolean7 = body.newObject("PartDesign::Boolean", "Boolean006")
boolean7.Type = "Fuse"
boolean7.addObjects([body9])

sketch12 = body.newObject("Sketcher::SketchObject", "Sketch011")
sketch12.AttachmentSupport = (doc.getObject("XY_Plane"), [""])
sketch12.MapMode = "FlatFace"
sketch12.addGeometry(Part.Circle(V(0, 0, 0), V(0, 0, 1), 450), False)
sketch12.addGeometry(Part.Circle(V(-40000, 0, 0), V(0, 0, 1), 450), False)
sketch12.addGeometry(Part.Circle(V(-80000, 0, 0), V(0, 0, 1), 450), False)
sketch12.addGeometry(Part.Circle(V(-120000, 0, 0), V(0, 0, 1), 450), False)
sketch12.addGeometry(Part.Circle(V(-142622.483037, 10652.325069, 0), V(0, 0, 1), 450), False)
sketch12.addGeometry(Part.Circle(V(-172364.111004, 7440.569648, 0), V(0, 0, 1), 450), False)
sketch12.addGeometry(Part.Circle(V(-202271.97096, 4213.666956, 0), V(0, 0, 1), 450), False)
sketch12.addGeometry(Part.Circle(V(-190175.192828, 42340.664724, 0), V(0, 0, 1), 450), False)
sketch12.addGeometry(Part.Circle(V(-185900.002015, 77404.913925, 0), V(0, 0, 1), 450), False)
sketch12.addConstraint(Sketcher.Constraint("Coincident", 0, 3, -1, 1))
sketch12.addConstraint(Sketcher.Constraint("Equal", 0, 1))
sketch12.addConstraint(Sketcher.Constraint("Equal", 1, 2))
sketch12.addConstraint(Sketcher.Constraint("Equal", 2, 3))
sketch12.addConstraint(Sketcher.Constraint("Equal", 3, 4))
sketch12.addConstraint(Sketcher.Constraint("Equal", 4, 5))
sketch12.addConstraint(Sketcher.Constraint("Equal", 5, 6))
sketch12.addConstraint(Sketcher.Constraint("Equal", 6, 7))
sketch12.addConstraint(Sketcher.Constraint("Equal", 7, 8))
sketch12.addConstraint(Sketcher.Constraint("PointOnObject", 1, 3, -1))
sketch12.addConstraint(Sketcher.Constraint("PointOnObject", 2, 3, -1))
sketch12.addConstraint(Sketcher.Constraint("PointOnObject", 3, 3, -1))
sketch12.addConstraint(Sketcher.Constraint("Diameter", 0, 900.0))
sketch12.addConstraint(Sketcher.Constraint("DistanceX", 1, 3, -1, 1, 40000.0))
sketch12.addConstraint(Sketcher.Constraint("DistanceX", 2, 3, -1, 1, 80000.0))
sketch12.addConstraint(Sketcher.Constraint("DistanceX", 3, 3, -1, 1, 120000.0))
sketch12.addConstraint(Sketcher.Constraint("DistanceY", 7, 3, 8, 3, 35064.249201))
sketch12.addConstraint(Sketcher.Constraint("DistanceY", -1, 1, 4, 3, 10652.325069))
sketch12.addConstraint(Sketcher.Constraint("DistanceY", -1, 1, 5, 3, 7440.569648))
sketch12.addConstraint(Sketcher.Constraint("DistanceX", 6, 3, -1, 1, 202271.97096))
sketch12.addConstraint(Sketcher.Constraint("DistanceY", 6, 3, 7, 3, 38126.997768))
sketch12.addConstraint(Sketcher.Constraint("DistanceX", 7, 3, 4, 3, 47552.709791))
sketch12.addConstraint(Sketcher.Constraint("DistanceX", 8, 3, 5, 3, 13535.891012))
sketch12.addConstraint(Sketcher.Constraint("DistanceX", 8, 3, 4, 3, 43277.518979))
sketch12.addConstraint(Sketcher.Constraint("DistanceX", 4, 3, -1, 1, 142622.483037))
sketch12.addConstraint(Sketcher.Constraint("DistanceY", -1, 1, 6, 3, 4213.666956))
pad12 = body.newObject("PartDesign::Pad", "Pad011")
pad12.Profile = sketch12
pad12.Length = 1700

sketch13 = body.newObject("Sketcher::SketchObject", "Sketch012")
sketch13.AttachmentSupport = (doc.getObject("XY_Plane"), [""])
sketch13.MapMode = "FlatFace"
sketch13.addGeometry(Part.Circle(V(0, 0, 0), V(0, 0, 1), 455), False)
sketch13.addGeometry(Part.Circle(V(-40000, 0, 0), V(0, 0, 1), 455), False)
sketch13.addGeometry(Part.Circle(V(-80000, 0, 0), V(0, 0, 1), 455), False)
sketch13.addGeometry(Part.Circle(V(-120000, 0, 0), V(0, 0, 1), 455), False)
sketch13.addGeometry(Part.Circle(V(-142622.483037, 10652.325069, 0), V(0, 0, 1), 455), False)
sketch13.addGeometry(Part.Circle(V(-172364.111004, 7440.569648, 0), V(0, 0, 1), 455), False)
sketch13.addGeometry(Part.Circle(V(-202271.97096, 4213.666956, 0), V(0, 0, 1), 455), False)
sketch13.addGeometry(Part.Circle(V(-190175.192828, 42340.664724, 0), V(0, 0, 1), 455), False)
sketch13.addGeometry(Part.Circle(V(-185900.002015, 77404.913925, 0), V(0, 0, 1), 455), False)
sketch13.addConstraint(Sketcher.Constraint("Coincident", 0, 3, -1, 1))
sketch13.addConstraint(Sketcher.Constraint("Equal", 0, 1))
sketch13.addConstraint(Sketcher.Constraint("Equal", 1, 2))
sketch13.addConstraint(Sketcher.Constraint("Equal", 2, 3))
sketch13.addConstraint(Sketcher.Constraint("Equal", 3, 4))
sketch13.addConstraint(Sketcher.Constraint("Equal", 4, 5))
sketch13.addConstraint(Sketcher.Constraint("Equal", 5, 6))
sketch13.addConstraint(Sketcher.Constraint("Equal", 6, 7))
sketch13.addConstraint(Sketcher.Constraint("Equal", 7, 8))
sketch13.addConstraint(Sketcher.Constraint("PointOnObject", 1, 3, -1))
sketch13.addConstraint(Sketcher.Constraint("PointOnObject", 2, 3, -1))
sketch13.addConstraint(Sketcher.Constraint("PointOnObject", 3, 3, -1))
sketch13.addConstraint(Sketcher.Constraint("Diameter", 0, 910.0))
sketch13.addConstraint(Sketcher.Constraint("DistanceX", 1, 3, -1, 1, 40000.0))
sketch13.addConstraint(Sketcher.Constraint("DistanceX", 2, 3, -1, 1, 80000.0))
sketch13.addConstraint(Sketcher.Constraint("DistanceX", 3, 3, -1, 1, 120000.0))
sketch13.addConstraint(Sketcher.Constraint("DistanceY", 7, 3, 8, 3, 35064.249201))
sketch13.addConstraint(Sketcher.Constraint("DistanceY", -1, 1, 4, 3, 10652.325069))
sketch13.addConstraint(Sketcher.Constraint("DistanceY", -1, 1, 5, 3, 7440.569648))
sketch13.addConstraint(Sketcher.Constraint("DistanceX", 6, 3, -1, 1, 202271.97096))
sketch13.addConstraint(Sketcher.Constraint("DistanceY", 6, 3, 7, 3, 38126.997768))
sketch13.addConstraint(Sketcher.Constraint("DistanceX", 7, 3, 4, 3, 47552.709791))
sketch13.addConstraint(Sketcher.Constraint("DistanceX", 8, 3, 5, 3, 13535.891012))
sketch13.addConstraint(Sketcher.Constraint("DistanceX", 8, 3, 4, 3, 43277.518979))
sketch13.addConstraint(Sketcher.Constraint("DistanceX", 4, 3, -1, 1, 142622.483037))
sketch13.addConstraint(Sketcher.Constraint("DistanceY", -1, 1, 6, 3, 4213.666956))
pad13 = body.newObject("PartDesign::Pad", "Pad012")
pad13.Profile = sketch13
pad13.Length = 100
pad13.Reversed = True

sketch14 = body.newObject("Sketcher::SketchObject", "Sketch013")
sketch14.AttachmentSupport = (doc.getObject("XY_Plane"), [""])
sketch14.MapMode = "FlatFace"
sketch14.AttachmentOffset = App.Placement(V(0, 0, 1700), App.Rotation())
sketch14.addGeometry(Part.Circle(V(-185902.963497, 77444.135339, 0), V(0, 0, 1), 574.012374), False)
sketch14.addConstraint(Sketcher.Constraint("Diameter", 0, 1148.024748))
sketch14.addConstraint(Sketcher.Constraint("DistanceY", -1, 1, 0, 3, 77444.135339))
sketch14.addConstraint(Sketcher.Constraint("DistanceX", 0, 3, -1, 1, 185902.963497))
pocket1 = body.newObject("PartDesign::Pocket", "Pocket")
pocket1.Profile = sketch14
pocket1.Length = 3000

doc.recompute()
